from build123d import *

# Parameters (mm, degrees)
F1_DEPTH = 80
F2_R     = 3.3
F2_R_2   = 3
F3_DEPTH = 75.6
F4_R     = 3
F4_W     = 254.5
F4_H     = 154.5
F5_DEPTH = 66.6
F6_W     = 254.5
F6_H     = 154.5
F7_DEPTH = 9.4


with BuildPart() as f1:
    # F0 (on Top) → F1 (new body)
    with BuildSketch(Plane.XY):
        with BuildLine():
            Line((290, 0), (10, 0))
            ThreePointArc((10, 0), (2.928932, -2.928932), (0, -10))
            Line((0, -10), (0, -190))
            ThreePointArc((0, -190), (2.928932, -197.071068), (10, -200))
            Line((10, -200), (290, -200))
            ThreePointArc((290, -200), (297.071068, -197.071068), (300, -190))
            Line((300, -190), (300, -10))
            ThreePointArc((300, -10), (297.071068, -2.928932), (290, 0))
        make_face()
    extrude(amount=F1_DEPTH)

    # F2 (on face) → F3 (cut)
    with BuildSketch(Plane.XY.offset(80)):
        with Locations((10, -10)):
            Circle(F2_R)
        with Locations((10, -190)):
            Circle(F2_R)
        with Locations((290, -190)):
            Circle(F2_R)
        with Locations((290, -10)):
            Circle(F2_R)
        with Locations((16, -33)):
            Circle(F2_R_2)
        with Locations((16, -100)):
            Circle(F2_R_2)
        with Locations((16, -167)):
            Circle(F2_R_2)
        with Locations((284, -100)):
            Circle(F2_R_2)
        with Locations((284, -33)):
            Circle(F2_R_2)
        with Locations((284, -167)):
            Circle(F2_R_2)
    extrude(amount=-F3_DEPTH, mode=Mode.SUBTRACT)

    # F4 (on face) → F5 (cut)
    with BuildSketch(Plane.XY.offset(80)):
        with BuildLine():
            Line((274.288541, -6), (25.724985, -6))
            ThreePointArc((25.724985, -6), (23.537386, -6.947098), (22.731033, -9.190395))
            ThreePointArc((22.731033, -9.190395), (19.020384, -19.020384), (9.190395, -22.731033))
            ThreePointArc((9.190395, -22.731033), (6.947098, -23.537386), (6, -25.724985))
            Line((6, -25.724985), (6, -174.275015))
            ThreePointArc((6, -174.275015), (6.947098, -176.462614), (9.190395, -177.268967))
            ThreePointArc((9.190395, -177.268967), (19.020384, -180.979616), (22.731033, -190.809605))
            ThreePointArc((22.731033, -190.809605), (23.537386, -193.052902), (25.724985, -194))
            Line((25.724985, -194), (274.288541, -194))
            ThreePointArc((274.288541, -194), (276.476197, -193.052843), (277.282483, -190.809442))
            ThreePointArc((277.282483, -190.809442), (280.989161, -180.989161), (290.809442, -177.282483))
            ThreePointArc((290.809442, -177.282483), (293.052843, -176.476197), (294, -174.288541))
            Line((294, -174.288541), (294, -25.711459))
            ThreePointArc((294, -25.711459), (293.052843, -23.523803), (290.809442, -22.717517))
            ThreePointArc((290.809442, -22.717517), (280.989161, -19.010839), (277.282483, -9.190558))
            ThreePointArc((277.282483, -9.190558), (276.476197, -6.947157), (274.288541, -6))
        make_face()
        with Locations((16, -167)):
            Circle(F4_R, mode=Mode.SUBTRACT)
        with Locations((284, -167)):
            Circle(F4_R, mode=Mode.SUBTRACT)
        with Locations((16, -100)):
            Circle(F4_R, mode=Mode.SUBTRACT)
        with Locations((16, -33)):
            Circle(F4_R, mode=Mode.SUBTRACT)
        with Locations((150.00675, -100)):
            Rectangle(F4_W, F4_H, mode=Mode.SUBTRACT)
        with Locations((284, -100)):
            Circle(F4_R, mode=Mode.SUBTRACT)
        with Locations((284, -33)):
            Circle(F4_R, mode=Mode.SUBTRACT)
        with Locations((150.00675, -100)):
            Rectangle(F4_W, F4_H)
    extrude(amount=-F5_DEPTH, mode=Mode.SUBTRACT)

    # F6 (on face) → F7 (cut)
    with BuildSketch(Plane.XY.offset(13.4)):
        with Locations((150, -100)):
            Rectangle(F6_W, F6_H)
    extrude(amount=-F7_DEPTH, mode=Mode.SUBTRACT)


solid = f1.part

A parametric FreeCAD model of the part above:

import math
import FreeCAD as App
import Part
import Sketcher
from FreeCAD import Vector


def add_polygon(sketch, points):
    """Adds a closed chain of lines whose ends are joined by coincident constraints."""
    first, n = sketch.GeometryCount, len(points)
    for a, b in zip(points, points[1:] + points[:1]):
        sketch.addGeometry(Part.LineSegment(App.Vector(*a, 0), App.Vector(*b, 0)), False)
    for i in range(n):
        sketch.addConstraint(Sketcher.Constraint("Coincident", first + i, 2, first + (i + 1) % n, 1))

doc = App.newDocument("Part")
body = doc.addObject("PartDesign::Body", "Body")

sketch1 = body.newObject("Sketcher::SketchObject", "Sketch")
sketch1.AttachmentSupport = (doc.getObject("XY_Plane"), [""])
sketch1.MapMode = "FlatFace"
sketch1.addGeometry([
    Part.LineSegment(Vector(290, 0, 0), Vector(10, 0, 0)),
    Part.ArcOfCircle(Part.Circle(Vector(9.999999, -9.999999, 0), Vector(0, 0, 1), 9.999999), math.radians(89.999996), math.radians(180.000004)),
    Part.LineSegment(Vector(0, -10, 0), Vector(0, -190, 0)),
    Part.ArcOfCircle(Part.Circle(Vector(9.999999, -190.000001, 0), Vector(0, 0, 1), 9.999999), math.radians(179.999996), math.radians(270.000004)),
    Part.LineSegment(Vector(10, -200, 0), Vector(290, -200, 0)),
    Part.ArcOfCircle(Part.Circle(Vector(290.000001, -190.000001, 0), Vector(0, 0, 1), 9.999999), math.radians(-90.000004), math.radians(0.000004)),
    Part.LineSegment(Vector(300, -190, 0), Vector(300, -10, 0)),
    Part.ArcOfCircle(Part.Circle(Vector(290.000001, -9.999999, 0), Vector(0, 0, 1), 9.999999), math.radians(-0.000004), math.radians(90.000004)),
], False)
sketch1.addConstraint([
    Sketcher.Constraint("Tangent", 0, 2, 1, 1),
    Sketcher.Constraint("Tangent", 1, 2, 2, 1),
    Sketcher.Constraint("Tangent", 2, 2, 3, 1),
    Sketcher.Constraint("Tangent", 3, 2, 4, 1),
    Sketcher.Constraint("Tangent", 4, 2, 5, 1),
    Sketcher.Constraint("Tangent", 5, 2, 6, 1),
    Sketcher.Constraint("Tangent", 6, 2, 7, 1),
    Sketcher.Constraint("Tangent", 7, 2, 0, 1),
    Sketcher.Constraint("Horizontal", 0),
    Sketcher.Constraint("Vertical", 2),
    Sketcher.Constraint("Horizontal", 4),
    Sketcher.Constraint("Vertical", 6),
    Sketcher.Constraint("Equal", 1, 3),
    Sketcher.Constraint("Equal", 3, 5),
    Sketcher.Constraint("Equal", 5, 7),
    Sketcher.Constraint("PointOnObject", 0, 2, -1),
    Sketcher.Constraint("PointOnObject", 1, 2, -2),
    Sketcher.Constraint("Radius", 1, 9.999999),
    Sketcher.Constraint("DistanceX", 0, 2, 0, 1, 280.0),
    Sketcher.Constraint("DistanceY", 2, 2, 2, 1, 180.0),
])
pad1 = body.newObject("PartDesign::Pad", "Pad")
pad1.Profile = sketch1
pad1.Length = 80

sketch2 = body.newObject("Sketcher::SketchObject", "Sketch001")
sketch2.AttachmentSupport = (doc.getObject("XY_Plane"), [""])
sketch2.MapMode = "FlatFace"
sketch2.AttachmentOffset = App.Placement(Vector(0, 0, 80), App.Rotation())
sketch2.addGeometry([
    Part.Circle(Vector(10, -10, 0), Vector(0, 0, 1), 3.3),
    Part.Circle(Vector(10, -190, 0), Vector(0, 0, 1), 3.3),
    Part.Circle(Vector(290, -190, 0), Vector(0, 0, 1), 3.3),
    Part.Circle(Vector(290, -10, 0), Vector(0, 0, 1), 3.3),
    Part.Circle(Vector(16, -33, 0), Vector(0, 0, 1), 3),
    Part.Circle(Vector(16, -100, 0), Vector(0, 0, 1), 3),
    Part.Circle(Vector(16, -167, 0), Vector(0, 0, 1), 3),
    Part.Circle(Vector(284, -100, 0), Vector(0, 0, 1), 3),
    Part.Circle(Vector(284, -33, 0), Vector(0, 0, 1), 3),
    Part.Circle(Vector(284, -167, 0), Vector(0, 0, 1), 3),
], False)
sketch2.addConstraint([
    Sketcher.Constraint("Equal", 0, 1),
    Sketcher.Constraint("Equal", 1, 2),
    Sketcher.Constraint("Equal", 2, 3),
    Sketcher.Constraint("Equal", 4, 5),
    Sketcher.Constraint("Equal", 5, 6),
    Sketcher.Constraint("Equal", 6, 7),
    Sketcher.Constraint("Equal", 7, 8),
    Sketcher.Constraint("Equal", 8, 9),
    Sketcher.Constraint("Horizontal", 1, 3, 2, 3),
    Sketcher.Constraint("Horizontal", 0, 3, 3, 3),
    Sketcher.Constraint("Horizontal", 5, 3, 7, 3),
    Sketcher.Constraint("Horizontal", 4, 3, 8, 3),
    Sketcher.Constraint("Horizontal", 6, 3, 9, 3),
    Sketcher.Constraint("Vertical", 0, 3, 1, 3),
    Sketcher.Constraint("Vertical", 2, 3, 3, 3),
    Sketcher.Constraint("Vertical", 4, 3, 5, 3),
    Sketcher.Constraint("Vertical", 5, 3, 6, 3),
    Sketcher.Constraint("Vertical", 7, 3, 8, 3),
    Sketcher.Constraint("Vertical", 8, 3, 9, 3),
    Sketcher.Constraint("Diameter", 4, 6.0),
    Sketcher.Constraint("Diameter", 0, 6.6),
    Sketcher.Constraint("DistanceX", -1, 1, 0, 3, 10.0),
    Sketcher.Constraint("DistanceY", 0, 3, -1, 1, 10.0),
    Sketcher.Constraint("DistanceY", 1, 3, -1, 1, 190.0),
    Sketcher.Constraint("DistanceX", -1, 1, 2, 3, 290.0),
    Sketcher.Constraint("DistanceX", -1, 1, 4, 3, 16.0),
    Sketcher.Constraint("DistanceY", 4, 3, -1, 1, 33.0),
    Sketcher.Constraint("DistanceY", 5, 3, -1, 1, 100.0),
    Sketcher.Constraint("DistanceY", 6, 3, -1, 1, 167.0),
    Sketcher.Constraint("DistanceX", -1, 1, 7, 3, 284.0),
])
pocket1 = body.newObject("PartDesign::Pocket", "Pocket")
pocket1.Profile = sketch2
pocket1.Length = 75.6

sketch3 = body.newObject("Sketcher::SketchObject", "Sketch002")
sketch3.AttachmentSupport = (doc.getObject("XY_Plane"), [""])
sketch3.MapMode = "FlatFace"
sketch3.AttachmentOffset = App.Placement(Vector(0, 0, 80), App.Rotation())
sketch3.addGeometry([
    Part.LineSegment(Vector(274.288541, -6, 0), Vector(25.724985, -6, 0)),
    Part.ArcOfCircle(Part.Circle(Vector(25.724986, -9.000001, 0), Vector(0, 0, 1), 3.000001), math.radians(90.000027), math.radians(183.638699)),
    Part.ArcOfCircle(Part.Circle(Vector(9.999999, -9.999999, 0), Vector(0, 0, 1), 12.75675), math.radians(-93.63871), math.radians(3.63871)),
    Part.ArcOfCircle(Part.Circle(Vector(9.000001, -25.724986, 0), Vector(0, 0, 1), 3.000001), math.radians(86.361301), math.radians(179.999973)),
    Part.LineSegment(Vector(6, -25.724985, 0), Vector(6, -174.275015, 0)),
    Part.ArcOfCircle(Part.Circle(Vector(9.000001, -174.275014, 0), Vector(0, 0, 1), 3.000001), math.radians(-179.999973), math.radians(-86.361301)),
    Part.ArcOfCircle(Part.Circle(Vector(9.999999, -190.000001, 0), Vector(0, 0, 1), 12.75675), math.radians(-3.63871), math.radians(93.63871)),
    Part.ArcOfCircle(Part.Circle(Vector(25.724986, -190.999999, 0), Vector(0, 0, 1), 3.000001), math.radians(176.361301), math.radians(269.999973)),
    Part.LineSegment(Vector(25.724985, -194, 0), Vector(274.288541, -194, 0)),
    Part.ArcOfCircle(Part.Circle(Vector(274.288542, -191.000001, 0), Vector(0, 0, 1), 2.999999), math.radians(-90.000021), math.radians(3.641859)),
    Part.ArcOfCircle(Part.Circle(Vector(290, -190, 0), Vector(0, 0, 1), 12.74325), math.radians(86.35816), math.radians(183.64184)),
    Part.ArcOfCircle(Part.Circle(Vector(291.000001, -174.288542, 0), Vector(0, 0, 1), 2.999999), math.radians(-93.641859), math.radians(0.000021)),
    Part.LineSegment(Vector(294, -174.288541, 0), Vector(294, -25.711459, 0)),
    Part.ArcOfCircle(Part.Circle(Vector(291.000001, -25.711458, 0), Vector(0, 0, 1), 2.999999), math.radians(-0.000021), math.radians(93.641859)),
    Part.ArcOfCircle(Part.Circle(Vector(290, -10, 0), Vector(0, 0, 1), 12.74325), math.radians(176.35816), math.radians(273.64184)),
    Part.ArcOfCircle(Part.Circle(Vector(274.288542, -8.999999, 0), Vector(0, 0, 1), 2.999999), math.radians(-3.641859), math.radians(90.000021)),
    Part.Circle(Vector(16, -167, 0), Vector(0, 0, 1), 3),
    Part.Circle(Vector(284, -167, 0), Vector(0, 0, 1), 3),
    Part.Circle(Vector(16, -100, 0), Vector(0, 0, 1), 3),
    Part.Circle(Vector(16, -33, 0), Vector(0, 0, 1), 3),
    Part.Circle(Vector(284, -100, 0), Vector(0, 0, 1), 3),
    Part.Circle(Vector(284, -33, 0), Vector(0, 0, 1), 3),
], False)
sketch3.addConstraint([
    Sketcher.Constraint("Tangent", 0, 2, 1, 1),
    Sketcher.Constraint("Tangent", 1, 2, 2, 2),
    Sketcher.Constraint("Tangent", 2, 1, 3, 1),
    Sketcher.Constraint("Tangent", 3, 2, 4, 1),
    Sketcher.Constraint("Tangent", 4, 2, 5, 1),
    Sketcher.Constraint("Tangent", 5, 2, 6, 2),
    Sketcher.Constraint("Tangent", 6, 1, 7, 1),
    Sketcher.Constraint("Tangent", 7, 2, 8, 1),
    Sketcher.Constraint("Tangent", 8, 2, 9, 1),
    Sketcher.Constraint("Tangent", 9, 2, 10, 2),
    Sketcher.Constraint("Tangent", 10, 1, 11, 1),
    Sketcher.Constraint("Tangent", 11, 2, 12, 1),
    Sketcher.Constraint("Tangent", 12, 2, 13, 1),
    Sketcher.Constraint("Tangent", 13, 2, 14, 2),
    Sketcher.Constraint("Tangent", 14, 1, 15, 1),
    Sketcher.Constraint("Tangent", 15, 2, 0, 1),
    Sketcher.Constraint("Horizontal", 0),
    Sketcher.Constraint("Vertical", 4),
    Sketcher.Constraint("Horizontal", 8),
    Sketcher.Constraint("Vertical", 12),
    Sketcher.Constraint("Equal", 1, 3),
    Sketcher.Constraint("Equal", 3, 5),
    Sketcher.Constraint("Equal", 2, 6),
    Sketcher.Constraint("Equal", 5, 7),
    Sketcher.Constraint("Equal", 7, 9),
    Sketcher.Constraint("Equal", 9, 11),
    Sketcher.Constraint("Equal", 11, 13),
    Sketcher.Constraint("Equal", 10, 14),
    Sketcher.Constraint("Equal", 13, 15),
    Sketcher.Constraint("Equal", 15, 16),
    Sketcher.Constraint("Equal", 16, 17),
    Sketcher.Constraint("Equal", 17, 18),
    Sketcher.Constraint("Equal", 18, 19),
    Sketcher.Constraint("Equal", 19, 20),
    Sketcher.Constraint("Equal", 20, 21),
    Sketcher.Constraint("Horizontal", 6, 3, 10, 3),
    Sketcher.Constraint("Horizontal", 2, 3, 14, 3),
    Sketcher.Constraint("Horizontal", 16, 3, 17, 3),
    Sketcher.Constraint("Horizontal", 18, 3, 20, 3),
    Sketcher.Constraint("Horizontal", 19, 3, 21, 3),
    Sketcher.Constraint("Vertical", 2, 3, 6, 3),
    Sketcher.Constraint("Vertical", 1, 3, 7, 3),
    Sketcher.Constraint("Vertical", 10, 3, 14, 3),
    Sketcher.Constraint("Vertical", 16, 3, 18, 3),
    Sketcher.Constraint("Vertical", 18, 3, 19, 3),
    Sketcher.Constraint("Vertical", 17, 3, 20, 3),
    Sketcher.Constraint("Vertical", 20, 3, 21, 3),
    Sketcher.Constraint("Diameter", 16, 6.0),
    Sketcher.Constraint("DistanceY", 1, 3, -1, 1, 9.000001),
    Sketcher.Constraint("DistanceX", -1, 1, 2, 3, 9.999999),
    Sketcher.Constraint("DistanceY", 2, 3, -1, 1, 9.999999),
    Sketcher.Constraint("DistanceX", -1, 1, 3, 3, 9.000001),
    Sketcher.Constraint("DistanceY", 6, 3, -1, 1, 190.000001),
    Sketcher.Constraint("DistanceX", -1, 1, 10, 3, 290.0),
    Sketcher.Constraint("DistanceX", -1, 1, 11, 3, 291.000001),
    Sketcher.Constraint("DistanceX", -1, 1, 16, 3, 16.0),
    Sketcher.Constraint("DistanceY", 16, 3, -1, 1, 167.0),
    Sketcher.Constraint("DistanceX", -1, 1, 17, 3, 284.0),
    Sketcher.Constraint("DistanceY", 18, 3, -1, 1, 100.0),
    Sketcher.Constraint("DistanceY", 19, 3, -1, 1, 33.0),
    Sketcher.Constraint("Radius", 2, 12.75675),
    Sketcher.Constraint("Radius", 10, 12.74325),
])
pocket2 = body.newObject("PartDesign::Pocket", "Pocket001")
pocket2.Profile = sketch3
pocket2.Length = 66.6

sketch4 = body.newObject("Sketcher::SketchObject", "Sketch003")
sketch4.AttachmentSupport = (doc.getObject("XY_Plane"), [""])
sketch4.MapMode = "FlatFace"
sketch4.AttachmentOffset = App.Placement(Vector(0, 0, 13.4), App.Rotation())
add_polygon(sketch4, [(22.75, -22.75), (22.75, -177.25), (277.25, -177.25), (277.25, -22.75)])
sketch4.addConstraint([
    Sketcher.Constraint("Vertical", 0),
    Sketcher.Constraint("Horizontal", 1),
    Sketcher.Constraint("Vertical", 2),
    Sketcher.Constraint("Horizontal", 3),
    Sketcher.Constraint("DistanceX", 1, 1, 1, 2, 254.5),
    Sketcher.Constraint("DistanceY", 0, 2, 0, 1, 154.5),
    Sketcher.Constraint("DistanceX", -1, 1, 0, 2, 22.75),
    Sketcher.Constraint("DistanceY", 0, 2, -1, 1, 177.25),
])
pocket3 = body.newObject("PartDesign::Pocket", "Pocket002")
pocket3.Profile = sketch4
pocket3.Length = 9.4

doc.recompute()
